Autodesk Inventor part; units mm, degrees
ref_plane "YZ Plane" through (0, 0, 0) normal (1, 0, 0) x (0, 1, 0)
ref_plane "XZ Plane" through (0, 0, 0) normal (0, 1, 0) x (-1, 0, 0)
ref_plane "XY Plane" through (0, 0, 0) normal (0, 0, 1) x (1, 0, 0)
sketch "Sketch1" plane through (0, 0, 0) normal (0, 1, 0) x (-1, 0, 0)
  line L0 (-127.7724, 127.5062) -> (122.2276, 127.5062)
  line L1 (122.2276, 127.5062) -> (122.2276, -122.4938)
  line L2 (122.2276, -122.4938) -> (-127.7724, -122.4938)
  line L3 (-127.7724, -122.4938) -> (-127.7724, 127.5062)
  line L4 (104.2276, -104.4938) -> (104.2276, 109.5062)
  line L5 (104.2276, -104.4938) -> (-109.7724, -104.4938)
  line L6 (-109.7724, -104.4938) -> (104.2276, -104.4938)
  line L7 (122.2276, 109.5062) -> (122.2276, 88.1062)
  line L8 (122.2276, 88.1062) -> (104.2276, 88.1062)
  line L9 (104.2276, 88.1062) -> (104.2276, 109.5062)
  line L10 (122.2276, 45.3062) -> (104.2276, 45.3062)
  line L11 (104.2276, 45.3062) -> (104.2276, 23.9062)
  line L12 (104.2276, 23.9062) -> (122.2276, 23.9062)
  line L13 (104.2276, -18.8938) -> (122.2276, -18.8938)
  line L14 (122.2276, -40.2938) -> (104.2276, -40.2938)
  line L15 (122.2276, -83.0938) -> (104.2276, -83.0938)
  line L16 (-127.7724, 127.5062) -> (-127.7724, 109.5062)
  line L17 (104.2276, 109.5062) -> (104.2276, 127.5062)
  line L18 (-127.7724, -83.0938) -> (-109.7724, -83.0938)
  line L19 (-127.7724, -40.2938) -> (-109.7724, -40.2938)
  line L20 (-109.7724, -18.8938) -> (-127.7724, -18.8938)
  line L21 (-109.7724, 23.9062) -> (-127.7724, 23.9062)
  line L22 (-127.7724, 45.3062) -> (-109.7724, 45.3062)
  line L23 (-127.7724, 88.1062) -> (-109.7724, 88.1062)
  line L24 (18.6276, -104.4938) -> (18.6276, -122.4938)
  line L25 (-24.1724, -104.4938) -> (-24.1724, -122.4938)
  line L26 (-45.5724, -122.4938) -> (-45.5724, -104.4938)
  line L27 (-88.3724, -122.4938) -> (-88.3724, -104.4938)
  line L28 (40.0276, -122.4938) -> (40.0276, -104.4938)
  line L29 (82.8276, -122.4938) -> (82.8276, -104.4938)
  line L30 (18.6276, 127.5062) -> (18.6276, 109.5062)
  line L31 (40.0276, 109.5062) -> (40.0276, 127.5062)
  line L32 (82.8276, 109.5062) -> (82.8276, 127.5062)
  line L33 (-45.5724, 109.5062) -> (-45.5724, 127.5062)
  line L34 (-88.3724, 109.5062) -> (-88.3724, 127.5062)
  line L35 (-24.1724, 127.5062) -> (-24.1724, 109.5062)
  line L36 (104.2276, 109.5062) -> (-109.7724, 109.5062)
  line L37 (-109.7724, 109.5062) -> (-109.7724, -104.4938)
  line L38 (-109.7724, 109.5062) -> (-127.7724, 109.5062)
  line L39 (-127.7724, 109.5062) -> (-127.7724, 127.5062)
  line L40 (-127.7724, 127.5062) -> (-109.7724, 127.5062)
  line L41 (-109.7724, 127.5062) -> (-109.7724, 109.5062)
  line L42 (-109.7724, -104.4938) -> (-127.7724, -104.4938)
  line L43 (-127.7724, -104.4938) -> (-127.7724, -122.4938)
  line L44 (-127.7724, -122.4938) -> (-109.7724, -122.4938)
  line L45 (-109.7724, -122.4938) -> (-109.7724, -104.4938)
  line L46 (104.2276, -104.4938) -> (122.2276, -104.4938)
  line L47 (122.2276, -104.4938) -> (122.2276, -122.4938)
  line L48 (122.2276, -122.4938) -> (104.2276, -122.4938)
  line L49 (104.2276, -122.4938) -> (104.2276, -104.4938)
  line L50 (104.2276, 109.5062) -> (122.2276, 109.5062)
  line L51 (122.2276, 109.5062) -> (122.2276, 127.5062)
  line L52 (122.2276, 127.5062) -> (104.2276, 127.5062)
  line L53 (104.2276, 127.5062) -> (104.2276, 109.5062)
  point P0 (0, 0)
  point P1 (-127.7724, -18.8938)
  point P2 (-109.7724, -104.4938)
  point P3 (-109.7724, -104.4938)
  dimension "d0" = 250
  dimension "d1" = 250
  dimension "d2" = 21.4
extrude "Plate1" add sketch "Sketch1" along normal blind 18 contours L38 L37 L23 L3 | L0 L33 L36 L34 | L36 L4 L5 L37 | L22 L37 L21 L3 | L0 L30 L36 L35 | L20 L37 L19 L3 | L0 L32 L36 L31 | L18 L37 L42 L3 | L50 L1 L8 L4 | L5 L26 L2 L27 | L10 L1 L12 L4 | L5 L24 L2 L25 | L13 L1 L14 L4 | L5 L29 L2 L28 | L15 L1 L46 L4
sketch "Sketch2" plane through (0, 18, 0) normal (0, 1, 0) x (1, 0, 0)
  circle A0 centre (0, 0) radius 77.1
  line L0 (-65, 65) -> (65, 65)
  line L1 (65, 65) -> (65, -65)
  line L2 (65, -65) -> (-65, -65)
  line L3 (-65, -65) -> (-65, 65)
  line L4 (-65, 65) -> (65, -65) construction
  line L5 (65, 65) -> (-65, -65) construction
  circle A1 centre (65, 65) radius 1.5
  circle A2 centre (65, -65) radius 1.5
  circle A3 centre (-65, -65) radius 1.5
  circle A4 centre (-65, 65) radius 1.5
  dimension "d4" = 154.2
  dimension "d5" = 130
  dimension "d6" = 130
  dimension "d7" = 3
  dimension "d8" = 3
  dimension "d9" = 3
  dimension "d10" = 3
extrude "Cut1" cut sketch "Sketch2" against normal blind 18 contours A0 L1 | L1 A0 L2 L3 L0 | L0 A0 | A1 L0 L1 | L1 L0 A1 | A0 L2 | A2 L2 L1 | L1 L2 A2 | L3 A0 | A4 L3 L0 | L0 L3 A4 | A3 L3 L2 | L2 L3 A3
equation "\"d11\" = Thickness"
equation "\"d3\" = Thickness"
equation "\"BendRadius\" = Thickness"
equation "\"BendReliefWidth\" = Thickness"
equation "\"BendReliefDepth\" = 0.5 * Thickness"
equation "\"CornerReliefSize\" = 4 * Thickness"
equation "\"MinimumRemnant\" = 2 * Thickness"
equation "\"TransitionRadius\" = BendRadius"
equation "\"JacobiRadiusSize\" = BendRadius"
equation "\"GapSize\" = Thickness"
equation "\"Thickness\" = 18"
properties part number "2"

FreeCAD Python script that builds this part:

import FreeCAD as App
import Part
import Sketcher
Q = App.Units.Quantity

doc = App.newDocument("Part")
body = doc.addObject("PartDesign::Body", "Body")

sketch1 = doc.addObject("Sketcher::SketchObject", "Sketch")
body.addObject(sketch1)
sketch1.AttachmentSupport = (doc.XZ_Plane, [""])
sketch1.MapMode = "FlatFace"
sketch1.addGeometry([
    Part.LineSegment(App.Vector(128, 110, 0), App.Vector(128, 88, 0)),
    Part.LineSegment(App.Vector(128, 88, 0), App.Vector(110, 88, 0)),
    Part.LineSegment(App.Vector(110, 88, 0), App.Vector(110, 45, 0)),
    Part.LineSegment(App.Vector(110, 45, 0), App.Vector(128, 45, 0)),
    Part.LineSegment(App.Vector(128, 45, 0), App.Vector(128, 24, 0)),
    Part.LineSegment(App.Vector(128, 24, 0), App.Vector(110, 24, 0)),
    Part.LineSegment(App.Vector(110, 24, 0), App.Vector(110, -19, 0)),
    Part.LineSegment(App.Vector(110, -19, 0), App.Vector(128, -19, 0)),
    Part.LineSegment(App.Vector(128, -19, 0), App.Vector(128, -40, 0)),
    Part.LineSegment(App.Vector(128, -40, 0), App.Vector(110, -40, 0)),
    Part.LineSegment(App.Vector(110, -40, 0), App.Vector(110, -83, 0)),
    Part.LineSegment(App.Vector(110, -83, 0), App.Vector(128, -83, 0)),
    Part.LineSegment(App.Vector(128, -83, 0), App.Vector(128, -104, 0)),
    Part.LineSegment(App.Vector(128, -104, 0), App.Vector(88, -104, 0)),
    Part.LineSegment(App.Vector(88, -104, 0), App.Vector(88, -122, 0)),
    Part.LineSegment(App.Vector(88, -122, 0), App.Vector(46, -122, 0)),
    Part.LineSegment(App.Vector(46, -122, 0), App.Vector(46, -104, 0)),
    Part.LineSegment(App.Vector(46, -104, 0), App.Vector(24, -104, 0)),
    Part.LineSegment(App.Vector(24, -104, 0), App.Vector(24, -122, 0)),
    Part.LineSegment(App.Vector(24, -122, 0), App.Vector(-19, -122, 0)),
    Part.LineSegment(App.Vector(-19, -122, 0), App.Vector(-19, -104, 0)),
    Part.LineSegment(App.Vector(-19, -104, 0), App.Vector(-40, -104, 0)),
    Part.LineSegment(App.Vector(-40, -104, 0), App.Vector(-40, -122, 0)),
    Part.LineSegment(App.Vector(-40, -122, 0), App.Vector(-83, -122, 0)),
    Part.LineSegment(App.Vector(-83, -122, 0), App.Vector(-83, -104, 0)),
    Part.LineSegment(App.Vector(-83, -104, 0), App.Vector(-122, -104, 0)),
    Part.LineSegment(App.Vector(-122, -104, 0), App.Vector(-122, -83, 0)),
    Part.LineSegment(App.Vector(-122, -83, 0), App.Vector(-104, -83, 0)),
    Part.LineSegment(App.Vector(-104, -83, 0), App.Vector(-104, -40, 0)),
    Part.LineSegment(App.Vector(-104, -40, 0), App.Vector(-122, -40, 0)),
    Part.LineSegment(App.Vector(-122, -40, 0), App.Vector(-122, -19, 0)),
    Part.LineSegment(App.Vector(-122, -19, 0), App.Vector(-104, -19, 0)),
    Part.LineSegment(App.Vector(-104, -19, 0), App.Vector(-104, 24, 0)),
    Part.LineSegment(App.Vector(-104, 24, 0), App.Vector(-122, 24, 0)),
    Part.LineSegment(App.Vector(-122, 24, 0), App.Vector(-122, 45, 0)),
    Part.LineSegment(App.Vector(-122, 45, 0), App.Vector(-104, 45, 0)),
    Part.LineSegment(App.Vector(-104, 45, 0), App.Vector(-104, 88, 0)),
    Part.LineSegment(App.Vector(-104, 88, 0), App.Vector(-122, 88, 0)),
    Part.LineSegment(App.Vector(-122, 88, 0), App.Vector(-122, 110, 0)),
    Part.LineSegment(App.Vector(-122, 110, 0), App.Vector(-83, 110, 0)),
    Part.LineSegment(App.Vector(-83, 110, 0), App.Vector(-83, 128, 0)),
    Part.LineSegment(App.Vector(-83, 128, 0), App.Vector(-40, 128, 0)),
    Part.LineSegment(App.Vector(-40, 128, 0), App.Vector(-40, 110, 0)),
    Part.LineSegment(App.Vector(-40, 110, 0), App.Vector(-19, 110, 0)),
    Part.LineSegment(App.Vector(-19, 110, 0), App.Vector(-19, 128, 0)),
    Part.LineSegment(App.Vector(-19, 128, 0), App.Vector(24, 128, 0)),
    Part.LineSegment(App.Vector(24, 128, 0), App.Vector(24, 110, 0)),
    Part.LineSegment(App.Vector(24, 110, 0), App.Vector(46, 110, 0)),
    Part.LineSegment(App.Vector(46, 110, 0), App.Vector(46, 128, 0)),
    Part.LineSegment(App.Vector(46, 128, 0), App.Vector(88, 128, 0)),
    Part.LineSegment(App.Vector(88, 128, 0), App.Vector(88, 110, 0)),
    Part.LineSegment(App.Vector(88, 110, 0), App.Vector(128, 110, 0)),
], False)
sketch1.addConstraint([
    Sketcher.Constraint("Coincident", 0, 2, 1, 1),
    Sketcher.Constraint("Coincident", 1, 2, 2, 1),
    Sketcher.Constraint("Coincident", 2, 2, 3, 1),
    Sketcher.Constraint("Coincident", 3, 2, 4, 1),
    Sketcher.Constraint("Coincident", 4, 2, 5, 1),
    Sketcher.Constraint("Coincident", 5, 2, 6, 1),
    Sketcher.Constraint("Coincident", 6, 2, 7, 1),
    Sketcher.Constraint("Coincident", 7, 2, 8, 1),
    Sketcher.Constraint("Coincident", 8, 2, 9, 1),
    Sketcher.Constraint("Coincident", 9, 2, 10, 1),
    Sketcher.Constraint("Coincident", 10, 2, 11, 1),
    Sketcher.Constraint("Coincident", 11, 2, 12, 1),
    Sketcher.Constraint("Coincident", 12, 2, 13, 1),
    Sketcher.Constraint("Coincident", 13, 2, 14, 1),
    Sketcher.Constraint("Coincident", 14, 2, 15, 1),
    Sketcher.Constraint("Coincident", 15, 2, 16, 1),
    Sketcher.Constraint("Coincident", 16, 2, 17, 1),
    Sketcher.Constraint("Coincident", 17, 2, 18, 1),
    Sketcher.Constraint("Coincident", 18, 2, 19, 1),
    Sketcher.Constraint("Coincident", 19, 2, 20, 1),
    Sketcher.Constraint("Coincident", 20, 2, 21, 1),
    Sketcher.Constraint("Coincident", 21, 2, 22, 1),
    Sketcher.Constraint("Coincident", 22, 2, 23, 1),
    Sketcher.Constraint("Coincident", 23, 2, 24, 1),
    Sketcher.Constraint("Coincident", 24, 2, 25, 1),
    Sketcher.Constraint("Coincident", 25, 2, 26, 1),
    Sketcher.Constraint("Coincident", 26, 2, 27, 1),
    Sketcher.Constraint("Coincident", 27, 2, 28, 1),
    Sketcher.Constraint("Coincident", 28, 2, 29, 1),
    Sketcher.Constraint("Coincident", 29, 2, 30, 1),
    Sketcher.Constraint("Coincident", 30, 2, 31, 1),
    Sketcher.Constraint("Coincident", 31, 2, 32, 1),
    Sketcher.Constraint("Coincident", 32, 2, 33, 1),
    Sketcher.Constraint("Coincident", 33, 2, 34, 1),
    Sketcher.Constraint("Coincident", 34, 2, 35, 1),
    Sketcher.Constraint("Coincident", 35, 2, 36, 1),
    Sketcher.Constraint("Coincident", 36, 2, 37, 1),
    Sketcher.Constraint("Coincident", 37, 2, 38, 1),
    Sketcher.Constraint("Coincident", 38, 2, 39, 1),
    Sketcher.Constraint("Coincident", 39, 2, 40, 1),
    Sketcher.Constraint("Coincident", 40, 2, 41, 1),
    Sketcher.Constraint("Coincident", 41, 2, 42, 1),
    Sketcher.Constraint("Coincident", 42, 2, 43, 1),
    Sketcher.Constraint("Coincident", 43, 2, 44, 1),
    Sketcher.Constraint("Coincident", 44, 2, 45, 1),
    Sketcher.Constraint("Coincident", 45, 2, 46, 1),
    Sketcher.Constraint("Coincident", 46, 2, 47, 1),
    Sketcher.Constraint("Coincident", 47, 2, 48, 1),
    Sketcher.Constraint("Coincident", 48, 2, 49, 1),
    Sketcher.Constraint("Coincident", 49, 2, 50, 1),
    Sketcher.Constraint("Coincident", 50, 2, 51, 1),
    Sketcher.Constraint("Coincident", 51, 2, 0, 1),
    Sketcher.Constraint("Vertical", 0),
    Sketcher.Constraint("Horizontal", 1),
    Sketcher.Constraint("Vertical", 2),
    Sketcher.Constraint("Horizontal", 3),
    Sketcher.Constraint("Vertical", 4),
    Sketcher.Constraint("Horizontal", 5),
    Sketcher.Constraint("Vertical", 6),
    Sketcher.Constraint("Horizontal", 7),
    Sketcher.Constraint("Vertical", 8),
    Sketcher.Constraint("Horizontal", 9),
    Sketcher.Constraint("Vertical", 10),
    Sketcher.Constraint("Horizontal", 11),
    Sketcher.Constraint("Vertical", 12),
    Sketcher.Constraint("Horizontal", 13),
    Sketcher.Constraint("Vertical", 14),
    Sketcher.Constraint("Horizontal", 15),
    Sketcher.Constraint("Vertical", 16),
    Sketcher.Constraint("Horizontal", 17),
    Sketcher.Constraint("Vertical", 18),
    Sketcher.Constraint("Horizontal", 19),
    Sketcher.Constraint("Vertical", 20),
    Sketcher.Constraint("Horizontal", 21),
    Sketcher.Constraint("Vertical", 22),
    Sketcher.Constraint("Horizontal", 23),
    Sketcher.Constraint("Vertical", 24),
    Sketcher.Constraint("Horizontal", 25),
    Sketcher.Constraint("Vertical", 26),
    Sketcher.Constraint("Horizontal", 27),
    Sketcher.Constraint("Vertical", 28),
    Sketcher.Constraint("Horizontal", 29),
    Sketcher.Constraint("Vertical", 30),
    Sketcher.Constraint("Horizontal", 31),
    Sketcher.Constraint("Vertical", 32),
    Sketcher.Constraint("Horizontal", 33),
    Sketcher.Constraint("Vertical", 34),
    Sketcher.Constraint("Horizontal", 35),
    Sketcher.Constraint("Vertical", 36),
    Sketcher.Constraint("Horizontal", 37),
    Sketcher.Constraint("Vertical", 38),
    Sketcher.Constraint("Horizontal", 39),
    Sketcher.Constraint("Vertical", 40),
    Sketcher.Constraint("Horizontal", 41),
    Sketcher.Constraint("Vertical", 42),
    Sketcher.Constraint("Horizontal", 43),
    Sketcher.Constraint("Vertical", 44),
    Sketcher.Constraint("Horizontal", 45),
    Sketcher.Constraint("Vertical", 46),
    Sketcher.Constraint("Horizontal", 47),
    Sketcher.Constraint("Vertical", 48),
    Sketcher.Constraint("Horizontal", 49),
    Sketcher.Constraint("Vertical", 50),
    Sketcher.Constraint("Horizontal", 51),
    Sketcher.Constraint("Horizontal", 13, 2, 16, 2),
    Sketcher.Constraint("Horizontal", 15, 2, 18, 2),
    Sketcher.Constraint("Horizontal", 17, 2, 20, 2),
    Sketcher.Constraint("Horizontal", 19, 2, 22, 2),
    Sketcher.Constraint("Horizontal", 21, 2, 24, 2),
    Sketcher.Constraint("Horizontal", 11, 2, 26, 2),
    Sketcher.Constraint("Horizontal", 9, 2, 28, 2),
    Sketcher.Constraint("Horizontal", 7, 2, 30, 2),
    Sketcher.Constraint("Horizontal", 5, 2, 32, 2),
    Sketcher.Constraint("Horizontal", 3, 2, 34, 2),
    Sketcher.Constraint("Horizontal", 1, 2, 36, 2),
    Sketcher.Constraint("Horizontal", 39, 2, 42, 2),
    Sketcher.Constraint("Horizontal", 41, 2, 44, 2),
    Sketcher.Constraint("Horizontal", 43, 2, 46, 2),
    Sketcher.Constraint("Horizontal", 45, 2, 48, 2),
    Sketcher.Constraint("Horizontal", 47, 2, 50, 2),
    Sketcher.Constraint("Vertical", 0, 2, 3, 2),
    Sketcher.Constraint("Vertical", 2, 2, 5, 2),
    Sketcher.Constraint("Vertical", 4, 2, 7, 2),
    Sketcher.Constraint("Vertical", 6, 2, 9, 2),
    Sketcher.Constraint("Vertical", 8, 2, 11, 2),
    Sketcher.Constraint("Vertical", 26, 2, 29, 2),
    Sketcher.Constraint("Vertical", 28, 2, 31, 2),
    Sketcher.Constraint("Vertical", 30, 2, 33, 2),
    Sketcher.Constraint("Vertical", 32, 2, 35, 2),
    Sketcher.Constraint("Vertical", 34, 2, 37, 2),
    Sketcher.Constraint("Vertical", 24, 2, 39, 2),
    Sketcher.Constraint("Vertical", 22, 2, 41, 2),
    Sketcher.Constraint("Vertical", 20, 2, 43, 2),
    Sketcher.Constraint("Vertical", 18, 2, 45, 2),
    Sketcher.Constraint("Vertical", 16, 2, 47, 2),
    Sketcher.Constraint("Vertical", 14, 2, 49, 2),
    Sketcher.Constraint("Equal", 15, 19),
    Sketcher.Constraint("Equal", 17, 21),
    Sketcher.Constraint("Equal", 19, 23),
    Sketcher.Constraint("Equal", 13, 25),
    Sketcher.Constraint("Equal", 11, 27),
    Sketcher.Constraint("Equal", 47, 0),
    Sketcher.Constraint("Equal", 49, 2),
    Sketcher.Constraint("Equal", 0, 4),
    Sketcher.Constraint("Equal", 2, 6),
    Sketcher.Constraint("Equal", 4, 8),
    Sketcher.Constraint("Equal", 6, 10),
    Sketcher.Constraint("Equal", 8, 12),
    Sketcher.Constraint("Equal", 37, 14),
    Sketcher.Constraint("Equal", 24, 40),
    Sketcher.Constraint("DistanceX", 17, 2, 17, 1, Q("21.4 mm")),
    Sketcher.Constraint("DistanceX", 13, 2, 10, 2, Q("21.4 mm")),
    Sketcher.Constraint("DistanceX", 1, 2, 1, 1, Q("18 mm")),
    Sketcher.Constraint("DistanceX", 15, 2, 15, 1, Q("42.8 mm")),
    Sketcher.Constraint("DistanceX", -1, 1, 0, 2, Q("127.7724 mm")),
    Sketcher.Constraint("DistanceY", -1, 1, 0, 2, Q("88.1062 mm")),
])
pad1 = doc.addObject("PartDesign::Pad", "Pad")
body.addObject(pad1)
pad1.Profile = sketch1
pad1.Length = 18
pad1.Reversed = True

sketch2 = doc.addObject("Sketcher::SketchObject", "Sketch001")
body.addObject(sketch2)
sketch2.AttachmentSupport = (doc.XZ_Plane, [""])
sketch2.MapMode = "FlatFace"
sketch2.AttachmentOffset = App.Placement(App.Vector(0, 0, -18), App.Rotation())
sketch2.addGeometry([
    Part.Circle(App.Vector(0, 0, 0), App.Vector(0, 0, 1), 77.1),
    Part.Circle(App.Vector(65, -65, 0), App.Vector(0, 0, 1), 1.5),
    Part.Circle(App.Vector(65, 65, 0), App.Vector(0, 0, 1), 1.5),
    Part.Circle(App.Vector(-65, -65, 0), App.Vector(0, 0, 1), 1.5),
    Part.Circle(App.Vector(-65, 65, 0), App.Vector(0, 0, 1), 1.5),
], False)
sketch2.addConstraint([
    Sketcher.Constraint("Coincident", 0, 3, -1, 1),
    Sketcher.Constraint("Equal", 1, 2),
    Sketcher.Constraint("Equal", 2, 3),
    Sketcher.Constraint("Equal", 3, 4),
    Sketcher.Constraint("Symmetric", 2, 3, 3, 3, -1, 1),
    Sketcher.Constraint("Symmetric", 1, 3, 4, 3, -1, 1),
    Sketcher.Constraint("Symmetric", 1, 3, 3, 3, -2),
    Sketcher.Constraint("Diameter", 1, Q("3 mm")),
    Sketcher.Constraint("Diameter", 0, Q("154.2 mm")),
    Sketcher.Constraint("DistanceY", 1, 3, 2, 3, Q("130 mm")),
    Sketcher.Constraint("DistanceX", 3, 3, 1, 3, Q("130 mm")),
])
pocket1 = doc.addObject("PartDesign::Pocket", "Pocket")
body.addObject(pocket1)
pocket1.Profile = sketch2
pocket1.Length = 18
pocket1.Reversed = True

doc.recompute()
